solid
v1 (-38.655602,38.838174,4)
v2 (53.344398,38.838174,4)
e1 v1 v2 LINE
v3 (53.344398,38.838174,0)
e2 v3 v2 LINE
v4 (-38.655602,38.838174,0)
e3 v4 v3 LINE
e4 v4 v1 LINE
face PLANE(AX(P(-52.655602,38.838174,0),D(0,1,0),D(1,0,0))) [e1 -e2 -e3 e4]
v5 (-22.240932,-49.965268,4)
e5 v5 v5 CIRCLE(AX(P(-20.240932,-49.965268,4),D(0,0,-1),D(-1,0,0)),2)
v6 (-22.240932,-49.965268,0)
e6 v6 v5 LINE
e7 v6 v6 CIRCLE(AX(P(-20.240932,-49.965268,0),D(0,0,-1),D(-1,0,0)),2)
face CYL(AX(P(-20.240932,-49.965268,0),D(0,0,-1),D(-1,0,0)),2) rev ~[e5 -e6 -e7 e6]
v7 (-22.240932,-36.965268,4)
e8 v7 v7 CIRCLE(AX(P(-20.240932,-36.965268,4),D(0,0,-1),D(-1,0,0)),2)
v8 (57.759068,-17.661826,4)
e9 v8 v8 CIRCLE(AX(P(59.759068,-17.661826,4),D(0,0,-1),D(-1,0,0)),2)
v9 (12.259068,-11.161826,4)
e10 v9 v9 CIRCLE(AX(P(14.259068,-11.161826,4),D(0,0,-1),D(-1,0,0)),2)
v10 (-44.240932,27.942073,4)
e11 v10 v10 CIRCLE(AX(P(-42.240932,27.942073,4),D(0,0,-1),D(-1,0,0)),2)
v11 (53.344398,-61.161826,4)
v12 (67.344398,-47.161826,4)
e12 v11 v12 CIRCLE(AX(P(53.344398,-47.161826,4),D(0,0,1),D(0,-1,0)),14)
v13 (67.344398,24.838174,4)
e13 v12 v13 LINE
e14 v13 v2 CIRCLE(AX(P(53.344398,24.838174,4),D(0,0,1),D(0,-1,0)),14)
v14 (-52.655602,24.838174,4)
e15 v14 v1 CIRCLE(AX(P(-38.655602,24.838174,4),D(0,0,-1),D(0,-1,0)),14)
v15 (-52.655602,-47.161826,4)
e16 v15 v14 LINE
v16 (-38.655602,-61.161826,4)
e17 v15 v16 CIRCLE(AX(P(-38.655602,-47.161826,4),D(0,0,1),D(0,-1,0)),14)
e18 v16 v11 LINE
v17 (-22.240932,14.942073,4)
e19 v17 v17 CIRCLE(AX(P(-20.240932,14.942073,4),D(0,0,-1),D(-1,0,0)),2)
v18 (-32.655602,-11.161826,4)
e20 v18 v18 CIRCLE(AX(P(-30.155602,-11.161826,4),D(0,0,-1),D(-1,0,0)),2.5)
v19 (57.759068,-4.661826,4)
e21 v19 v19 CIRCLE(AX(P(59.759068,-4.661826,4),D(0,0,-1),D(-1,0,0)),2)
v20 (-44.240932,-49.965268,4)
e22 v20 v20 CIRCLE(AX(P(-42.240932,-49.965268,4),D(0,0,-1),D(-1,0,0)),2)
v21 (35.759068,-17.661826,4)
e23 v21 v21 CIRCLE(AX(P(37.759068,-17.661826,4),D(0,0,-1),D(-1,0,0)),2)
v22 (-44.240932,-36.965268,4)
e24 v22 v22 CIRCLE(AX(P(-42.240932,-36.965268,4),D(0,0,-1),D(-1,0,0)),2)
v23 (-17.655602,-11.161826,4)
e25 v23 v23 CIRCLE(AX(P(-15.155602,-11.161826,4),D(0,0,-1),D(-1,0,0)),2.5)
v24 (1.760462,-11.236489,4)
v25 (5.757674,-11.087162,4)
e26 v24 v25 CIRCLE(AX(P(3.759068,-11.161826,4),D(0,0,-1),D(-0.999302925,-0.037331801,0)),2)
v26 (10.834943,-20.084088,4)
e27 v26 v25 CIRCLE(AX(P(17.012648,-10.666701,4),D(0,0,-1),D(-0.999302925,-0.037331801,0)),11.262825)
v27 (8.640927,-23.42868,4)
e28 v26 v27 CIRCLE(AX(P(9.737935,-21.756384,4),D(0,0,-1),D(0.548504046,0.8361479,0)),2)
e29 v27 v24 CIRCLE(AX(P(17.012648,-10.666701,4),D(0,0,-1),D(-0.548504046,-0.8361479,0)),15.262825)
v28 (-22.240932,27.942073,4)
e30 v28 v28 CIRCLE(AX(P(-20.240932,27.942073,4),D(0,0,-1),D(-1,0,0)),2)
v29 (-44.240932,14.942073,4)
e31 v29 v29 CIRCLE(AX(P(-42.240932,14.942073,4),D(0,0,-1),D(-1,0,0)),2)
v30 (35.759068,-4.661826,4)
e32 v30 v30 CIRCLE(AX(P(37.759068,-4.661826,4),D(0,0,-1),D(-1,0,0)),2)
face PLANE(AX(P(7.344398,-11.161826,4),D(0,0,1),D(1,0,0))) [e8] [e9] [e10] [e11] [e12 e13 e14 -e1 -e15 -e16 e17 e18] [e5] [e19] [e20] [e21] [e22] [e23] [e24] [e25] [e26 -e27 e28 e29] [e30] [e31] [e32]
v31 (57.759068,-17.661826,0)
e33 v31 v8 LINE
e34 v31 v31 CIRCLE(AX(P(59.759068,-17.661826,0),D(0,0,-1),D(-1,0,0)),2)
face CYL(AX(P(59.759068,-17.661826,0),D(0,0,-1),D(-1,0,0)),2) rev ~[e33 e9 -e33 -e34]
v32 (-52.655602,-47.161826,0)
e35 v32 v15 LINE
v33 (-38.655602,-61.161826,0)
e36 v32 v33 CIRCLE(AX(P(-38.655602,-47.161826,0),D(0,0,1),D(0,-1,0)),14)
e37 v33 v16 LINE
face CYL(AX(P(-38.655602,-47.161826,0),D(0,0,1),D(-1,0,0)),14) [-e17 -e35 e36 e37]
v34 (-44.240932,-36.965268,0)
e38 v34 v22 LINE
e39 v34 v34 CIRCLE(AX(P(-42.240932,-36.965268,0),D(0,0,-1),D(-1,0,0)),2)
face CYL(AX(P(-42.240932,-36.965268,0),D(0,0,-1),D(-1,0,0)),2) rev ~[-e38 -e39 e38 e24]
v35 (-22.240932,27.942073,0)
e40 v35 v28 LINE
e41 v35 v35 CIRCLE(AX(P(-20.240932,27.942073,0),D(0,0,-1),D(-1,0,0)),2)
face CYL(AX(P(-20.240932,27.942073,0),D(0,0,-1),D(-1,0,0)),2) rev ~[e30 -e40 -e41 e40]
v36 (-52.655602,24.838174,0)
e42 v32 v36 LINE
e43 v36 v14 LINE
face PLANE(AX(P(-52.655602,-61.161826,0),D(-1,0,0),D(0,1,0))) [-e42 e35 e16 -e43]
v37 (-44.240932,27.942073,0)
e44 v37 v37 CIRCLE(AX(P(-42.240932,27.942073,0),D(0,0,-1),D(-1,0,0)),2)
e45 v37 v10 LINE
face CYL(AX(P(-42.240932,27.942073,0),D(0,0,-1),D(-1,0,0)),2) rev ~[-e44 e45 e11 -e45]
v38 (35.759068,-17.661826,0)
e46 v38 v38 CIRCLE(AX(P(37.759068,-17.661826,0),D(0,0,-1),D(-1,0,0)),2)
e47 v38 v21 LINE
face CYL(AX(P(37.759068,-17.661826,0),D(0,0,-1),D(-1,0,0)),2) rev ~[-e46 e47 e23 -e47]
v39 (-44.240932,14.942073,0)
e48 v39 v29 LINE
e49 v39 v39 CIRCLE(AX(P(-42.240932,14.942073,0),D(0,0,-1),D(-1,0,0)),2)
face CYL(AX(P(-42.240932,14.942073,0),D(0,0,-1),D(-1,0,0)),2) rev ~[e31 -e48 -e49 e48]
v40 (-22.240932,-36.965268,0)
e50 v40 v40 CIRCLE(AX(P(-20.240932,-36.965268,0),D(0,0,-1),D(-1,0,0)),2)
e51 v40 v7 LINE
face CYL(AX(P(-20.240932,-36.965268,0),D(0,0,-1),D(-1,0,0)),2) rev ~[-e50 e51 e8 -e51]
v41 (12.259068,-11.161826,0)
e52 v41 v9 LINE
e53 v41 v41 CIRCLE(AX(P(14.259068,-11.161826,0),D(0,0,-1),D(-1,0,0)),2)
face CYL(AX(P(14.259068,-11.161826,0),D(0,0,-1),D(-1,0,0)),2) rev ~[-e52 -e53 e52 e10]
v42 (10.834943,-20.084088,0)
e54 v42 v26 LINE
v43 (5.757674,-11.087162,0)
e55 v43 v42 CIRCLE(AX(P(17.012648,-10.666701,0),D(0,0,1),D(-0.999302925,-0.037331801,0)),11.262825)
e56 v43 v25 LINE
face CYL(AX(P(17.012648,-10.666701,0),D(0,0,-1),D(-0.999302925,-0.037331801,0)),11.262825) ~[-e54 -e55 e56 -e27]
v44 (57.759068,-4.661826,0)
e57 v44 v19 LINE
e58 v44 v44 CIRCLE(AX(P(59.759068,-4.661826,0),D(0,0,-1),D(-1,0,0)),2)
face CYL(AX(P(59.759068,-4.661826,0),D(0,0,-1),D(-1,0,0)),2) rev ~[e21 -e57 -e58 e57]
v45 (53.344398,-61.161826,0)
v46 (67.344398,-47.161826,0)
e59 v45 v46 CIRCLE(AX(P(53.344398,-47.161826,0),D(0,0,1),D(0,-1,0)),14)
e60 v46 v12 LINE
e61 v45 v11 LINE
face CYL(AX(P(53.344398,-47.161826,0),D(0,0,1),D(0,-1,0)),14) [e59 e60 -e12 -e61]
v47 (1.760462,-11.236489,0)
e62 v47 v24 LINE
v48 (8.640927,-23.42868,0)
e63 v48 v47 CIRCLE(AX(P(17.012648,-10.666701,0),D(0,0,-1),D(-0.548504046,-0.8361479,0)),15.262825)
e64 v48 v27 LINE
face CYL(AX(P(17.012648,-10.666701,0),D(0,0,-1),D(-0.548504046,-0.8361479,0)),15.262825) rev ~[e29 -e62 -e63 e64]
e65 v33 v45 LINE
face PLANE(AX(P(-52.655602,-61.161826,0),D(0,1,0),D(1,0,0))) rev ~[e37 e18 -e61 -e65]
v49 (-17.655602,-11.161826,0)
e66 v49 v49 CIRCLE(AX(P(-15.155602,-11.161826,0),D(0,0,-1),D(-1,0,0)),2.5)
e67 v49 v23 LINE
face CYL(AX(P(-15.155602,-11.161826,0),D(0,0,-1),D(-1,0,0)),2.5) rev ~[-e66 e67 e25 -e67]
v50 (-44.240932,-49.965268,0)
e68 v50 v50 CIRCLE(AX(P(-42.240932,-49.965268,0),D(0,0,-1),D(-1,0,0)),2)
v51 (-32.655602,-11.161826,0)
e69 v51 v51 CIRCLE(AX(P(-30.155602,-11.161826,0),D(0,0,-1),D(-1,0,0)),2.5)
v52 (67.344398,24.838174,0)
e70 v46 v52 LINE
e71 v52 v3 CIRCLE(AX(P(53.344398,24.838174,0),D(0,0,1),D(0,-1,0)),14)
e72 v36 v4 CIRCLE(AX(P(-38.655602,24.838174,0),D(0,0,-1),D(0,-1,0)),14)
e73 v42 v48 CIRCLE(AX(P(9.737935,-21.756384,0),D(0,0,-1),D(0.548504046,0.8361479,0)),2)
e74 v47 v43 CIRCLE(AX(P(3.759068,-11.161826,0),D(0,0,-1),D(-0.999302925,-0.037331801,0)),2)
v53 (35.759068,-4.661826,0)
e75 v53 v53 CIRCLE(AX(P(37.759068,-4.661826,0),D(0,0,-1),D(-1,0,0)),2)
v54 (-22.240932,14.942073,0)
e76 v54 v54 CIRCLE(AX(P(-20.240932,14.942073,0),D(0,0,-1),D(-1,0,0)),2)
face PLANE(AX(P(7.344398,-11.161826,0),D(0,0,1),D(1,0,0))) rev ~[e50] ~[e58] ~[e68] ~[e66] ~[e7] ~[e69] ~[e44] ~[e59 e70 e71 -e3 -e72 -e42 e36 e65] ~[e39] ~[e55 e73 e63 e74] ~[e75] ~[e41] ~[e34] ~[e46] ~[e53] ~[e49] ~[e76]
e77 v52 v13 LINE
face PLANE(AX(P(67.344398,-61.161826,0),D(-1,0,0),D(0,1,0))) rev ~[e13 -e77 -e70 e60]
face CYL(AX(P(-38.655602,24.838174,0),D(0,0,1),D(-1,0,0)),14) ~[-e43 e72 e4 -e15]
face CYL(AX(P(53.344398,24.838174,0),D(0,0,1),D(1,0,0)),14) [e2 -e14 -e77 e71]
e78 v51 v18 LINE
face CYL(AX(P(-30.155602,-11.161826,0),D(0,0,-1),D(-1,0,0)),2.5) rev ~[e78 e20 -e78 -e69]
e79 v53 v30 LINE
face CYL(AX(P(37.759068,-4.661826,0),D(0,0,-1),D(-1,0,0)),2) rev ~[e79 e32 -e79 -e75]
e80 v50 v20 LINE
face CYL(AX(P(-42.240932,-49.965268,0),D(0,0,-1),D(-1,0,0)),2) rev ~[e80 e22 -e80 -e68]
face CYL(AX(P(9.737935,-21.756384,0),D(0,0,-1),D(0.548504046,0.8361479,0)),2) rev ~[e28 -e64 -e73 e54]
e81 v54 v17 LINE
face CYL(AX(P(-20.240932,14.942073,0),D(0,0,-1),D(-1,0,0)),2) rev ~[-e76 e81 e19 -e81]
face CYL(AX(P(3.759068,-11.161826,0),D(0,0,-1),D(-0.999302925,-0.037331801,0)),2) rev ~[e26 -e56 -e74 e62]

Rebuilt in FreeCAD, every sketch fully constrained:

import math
import FreeCAD as App
import Part
import Sketcher
from FreeCAD import Vector


def edges_at(feature, points):
    """Names of the edges that pass closest to the given points."""
    edges = feature.Shape.Edges
    near = lambda p: min(range(len(edges)), key=lambda i: edges[i].distToShape(Part.Vertex(*p))[0])
    return sorted({f"Edge{near(p) + 1}" for p in points})

doc = App.newDocument("Part")
body = doc.addObject("PartDesign::Body", "Body")

# Sketch on XY plane
sketch1 = body.newObject("Sketcher::SketchObject", "Sketch")
sketch1.AttachmentSupport = (doc.getObject("XY_Plane"), [""])
sketch1.MapMode = "FlatFace"
sketch1.addGeometry(Part.LineSegment(Vector(-53, 39, 0), Vector(-53, -61, 0)), False)
sketch1.addGeometry(Part.LineSegment(Vector(-53, -61, 0), Vector(67, -61, 0)), False)
sketch1.addGeometry(Part.LineSegment(Vector(67, -61, 0), Vector(67, 39, 0)), False)
sketch1.addGeometry(Part.LineSegment(Vector(67, 39, 0), Vector(-53, 39, 0)), False)
sketch1.addConstraint(Sketcher.Constraint("Coincident", 0, 2, 1, 1))
sketch1.addConstraint(Sketcher.Constraint("Coincident", 1, 2, 2, 1))
sketch1.addConstraint(Sketcher.Constraint("Coincident", 2, 2, 3, 1))
sketch1.addConstraint(Sketcher.Constraint("Coincident", 3, 2, 0, 1))
sketch1.addConstraint(Sketcher.Constraint("Vertical", 0))
sketch1.addConstraint(Sketcher.Constraint("Horizontal", 1))
sketch1.addConstraint(Sketcher.Constraint("Vertical", 2))
sketch1.addConstraint(Sketcher.Constraint("Horizontal", 3))
sketch1.addConstraint(Sketcher.Constraint("DistanceX", 1, 1, 1, 2, 120.0))
sketch1.addConstraint(Sketcher.Constraint("DistanceY", 0, 2, 0, 1, 100.0))
sketch1.addConstraint(Sketcher.Constraint("DistanceX", 0, 2, -1, 1, 52.655602))
sketch1.addConstraint(Sketcher.Constraint("DistanceY", 0, 2, -1, 1, 61.161826))
pad1 = body.newObject("PartDesign::Pad", "Pad")
pad1.Profile = sketch1
pad1.Length = 4
doc.recompute()

fillet = body.newObject("PartDesign::Fillet", "Fillet")
fillet.Base = (pad1, edges_at(pad1, [
    (-52.656, 38.838, 2),
    (67.344, 38.838, 2),
    (67.344, -61.162, 2),
    (-52.656, -61.162, 2),
]))
fillet.Radius = 14

# Sketch on XY plane
sketch2 = body.newObject("Sketcher::SketchObject", "Sketch001")
sketch2.AttachmentSupport = (doc.getObject("XY_Plane"), [""])
sketch2.MapMode = "FlatFace"
sketch2.addGeometry(Part.Circle(Vector(-15.2, -11.2, 0), Vector(0, 0, 1), 2.5), False)
sketch2.addGeometry(Part.Circle(Vector(-30.2, -11.2, 0), Vector(0, 0, 1), 2.5), False)
sketch2.addConstraint(Sketcher.Constraint("Equal", 0, 1))
sketch2.addConstraint(Sketcher.Constraint("Horizontal", 0, 3, 1, 3))
sketch2.addConstraint(Sketcher.Constraint("Diameter", 0, 5.0))
sketch2.addConstraint(Sketcher.Constraint("DistanceX", 1, 3, 0, 3, 15.0))
sketch2.addConstraint(Sketcher.Constraint("DistanceX", 0, 3, -1, 1, 15.155602))
sketch2.addConstraint(Sketcher.Constraint("DistanceY", 0, 3, -1, 1, 11.161826))
pocket1 = body.newObject("PartDesign::Pocket", "Pocket")
pocket1.Profile = sketch2
pocket1.Type = "ThroughAll"
pocket1.Reversed = True

# Sketch on XY plane
sketch3 = body.newObject("Sketcher::SketchObject", "Sketch002")
sketch3.AttachmentSupport = (doc.getObject("XY_Plane"), [""])
sketch3.MapMode = "FlatFace"
sketch3.addGeometry(Part.Circle(Vector(-42.2, -50, 0), Vector(0, 0, 1), 2), False)
sketch3.addGeometry(Part.Circle(Vector(-20.2, -50, 0), Vector(0, 0, 1), 2), False)
sketch3.addGeometry(Part.Circle(Vector(-42.2, -37, 0), Vector(0, 0, 1), 2), False)
sketch3.addGeometry(Part.Circle(Vector(-20.2, -37, 0), Vector(0, 0, 1), 2), False)
sketch3.addGeometry(Part.Circle(Vector(-42.2, 14.9, 0), Vector(0, 0, 1), 2), False)
sketch3.addGeometry(Part.Circle(Vector(-42.2, 27.9, 0), Vector(0, 0, 1), 2), False)
sketch3.addGeometry(Part.Circle(Vector(-20.2, 14.9, 0), Vector(0, 0, 1), 2), False)
sketch3.addGeometry(Part.Circle(Vector(-20.2, 27.9, 0), Vector(0, 0, 1), 2), False)
sketch3.addGeometry(Part.Circle(Vector(14.3, -11.2, 0), Vector(0, 0, 1), 2), False)
sketch3.addGeometry(Part.Circle(Vector(37.8, -17.7, 0), Vector(0, 0, 1), 2), False)
sketch3.addGeometry(Part.Circle(Vector(59.8, -17.7, 0), Vector(0, 0, 1), 2), False)
sketch3.addGeometry(Part.Circle(Vector(59.8, -4.7, 0), Vector(0, 0, 1), 2), False)
sketch3.addGeometry(Part.Circle(Vector(37.8, -4.7, 0), Vector(0, 0, 1), 2), False)
sketch3.addGeometry(Part.ArcOfCircle(Part.Circle(Vector(3.8, -11.2, 0), Vector(0, 0, 1), 2), math.radians(2), math.radians(182)), False)
sketch3.addGeometry(Part.ArcOfCircle(Part.Circle(Vector(17, -10.7, 0), Vector(0, 0, 1), 11.3), math.radians(-178), math.radians(-123)), False)
sketch3.addGeometry(Part.ArcOfCircle(Part.Circle(Vector(9.7, -21.8, 0), Vector(0, 0, 1), 2), math.radians(-123), math.radians(57)), False)
sketch3.addGeometry(Part.ArcOfCircle(Part.Circle(Vector(17, -10.7, 0), Vector(0, 0, 1), 15.3), math.radians(-178), math.radians(-123)), False)
sketch3.addConstraint(Sketcher.Constraint("Tangent", 13, 1, 14, 1))
sketch3.addConstraint(Sketcher.Constraint("Tangent", 14, 2, 15, 2))
sketch3.addConstraint(Sketcher.Constraint("Tangent", 15, 1, 16, 2))
sketch3.addConstraint(Sketcher.Constraint("Tangent", 16, 1, 13, 2))
sketch3.addConstraint(Sketcher.Constraint("Coincident", 16, 3, 14, 3))
sketch3.addConstraint(Sketcher.Constraint("Equal", 0, 1))
sketch3.addConstraint(Sketcher.Constraint("Equal", 1, 2))
sketch3.addConstraint(Sketcher.Constraint("Equal", 2, 3))
sketch3.addConstraint(Sketcher.Constraint("Equal", 3, 4))
sketch3.addConstraint(Sketcher.Constraint("Equal", 4, 5))
sketch3.addConstraint(Sketcher.Constraint("Equal", 5, 6))
sketch3.addConstraint(Sketcher.Constraint("Equal", 6, 7))
sketch3.addConstraint(Sketcher.Constraint("Equal", 7, 8))
sketch3.addConstraint(Sketcher.Constraint("Equal", 8, 9))
sketch3.addConstraint(Sketcher.Constraint("Equal", 9, 10))
sketch3.addConstraint(Sketcher.Constraint("Equal", 10, 11))
sketch3.addConstraint(Sketcher.Constraint("Equal", 11, 12))
sketch3.addConstraint(Sketcher.Constraint("Equal", 12, 13))
sketch3.addConstraint(Sketcher.Constraint("Horizontal", 0, 3, 1, 3))
sketch3.addConstraint(Sketcher.Constraint("Horizontal", 2, 3, 3, 3))
sketch3.addConstraint(Sketcher.Constraint("Horizontal", 4, 3, 6, 3))
sketch3.addConstraint(Sketcher.Constraint("Horizontal", 5, 3, 7, 3))
sketch3.addConstraint(Sketcher.Constraint("Horizontal", 9, 3, 10, 3))
sketch3.addConstraint(Sketcher.Constraint("Horizontal", 11, 3, 12, 3))
sketch3.addConstraint(Sketcher.Constraint("Horizontal", 8, 3, 13, 3))
sketch3.addConstraint(Sketcher.Constraint("Vertical", 0, 3, 2, 3))
sketch3.addConstraint(Sketcher.Constraint("Vertical", 1, 3, 3, 3))
sketch3.addConstraint(Sketcher.Constraint("Vertical", 2, 3, 4, 3))
sketch3.addConstraint(Sketcher.Constraint("Vertical", 4, 3, 5, 3))
sketch3.addConstraint(Sketcher.Constraint("Vertical", 3, 3, 6, 3))
sketch3.addConstraint(Sketcher.Constraint("Vertical", 6, 3, 7, 3))
sketch3.addConstraint(Sketcher.Constraint("Vertical", 10, 3, 11, 3))
sketch3.addConstraint(Sketcher.Constraint("Vertical", 9, 3, 12, 3))
sketch3.addConstraint(Sketcher.Constraint("Diameter", 0, 4.0))
sketch3.addConstraint(Sketcher.Constraint("DistanceX", 0, 3, 1, 3, 22.0))
sketch3.addConstraint(Sketcher.Constraint("DistanceY", 0, 3, 2, 3, 13.0))
sketch3.addConstraint(Sketcher.Constraint("DistanceY", 4, 3, 5, 3, 13.0))
sketch3.addConstraint(Sketcher.Constraint("DistanceX", 3, 3, 9, 3, 58.0))
sketch3.addConstraint(Sketcher.Constraint("DistanceX", 9, 3, 10, 3, 22.0))
sketch3.addConstraint(Sketcher.Constraint("DistanceY", 10, 3, 11, 3, 13.0))
sketch3.addConstraint(Sketcher.Constraint("DistanceX", 13, 3, 9, 3, 34.0))
sketch3.addConstraint(Sketcher.Constraint("DistanceX", 3, 3, 8, 3, 34.5))
sketch3.addConstraint(Sketcher.Constraint("DistanceY", 9, 3, 8, 3, 6.5))
sketch3.addConstraint(Sketcher.Constraint("Radius", 14, 11.262825))
sketch3.addConstraint(Sketcher.Constraint("DistanceY", 14, 3, -1, 1, 10.666701))
sketch3.addConstraint(Sketcher.Constraint("DistanceY", 8, 3, 6, 3, 26.103899))
sketch3.addConstraint(Sketcher.Constraint("DistanceY", 14, 2, 16, 1, 8.847599))
sketch3.addConstraint(Sketcher.Constraint("DistanceX", 0, 3, -1, 1, 42.240932))
sketch3.addConstraint(Sketcher.Constraint("DistanceY", 0, 3, -1, 1, 49.965268))
sketch3.addConstraint(Sketcher.Constraint("DistanceX", -1, 1, 14, 3, 17.012648))
pocket2 = body.newObject("PartDesign::Pocket", "Pocket001")
pocket2.Profile = sketch3
pocket2.Type = "ThroughAll"
pocket2.Reversed = True

doc.recompute()
